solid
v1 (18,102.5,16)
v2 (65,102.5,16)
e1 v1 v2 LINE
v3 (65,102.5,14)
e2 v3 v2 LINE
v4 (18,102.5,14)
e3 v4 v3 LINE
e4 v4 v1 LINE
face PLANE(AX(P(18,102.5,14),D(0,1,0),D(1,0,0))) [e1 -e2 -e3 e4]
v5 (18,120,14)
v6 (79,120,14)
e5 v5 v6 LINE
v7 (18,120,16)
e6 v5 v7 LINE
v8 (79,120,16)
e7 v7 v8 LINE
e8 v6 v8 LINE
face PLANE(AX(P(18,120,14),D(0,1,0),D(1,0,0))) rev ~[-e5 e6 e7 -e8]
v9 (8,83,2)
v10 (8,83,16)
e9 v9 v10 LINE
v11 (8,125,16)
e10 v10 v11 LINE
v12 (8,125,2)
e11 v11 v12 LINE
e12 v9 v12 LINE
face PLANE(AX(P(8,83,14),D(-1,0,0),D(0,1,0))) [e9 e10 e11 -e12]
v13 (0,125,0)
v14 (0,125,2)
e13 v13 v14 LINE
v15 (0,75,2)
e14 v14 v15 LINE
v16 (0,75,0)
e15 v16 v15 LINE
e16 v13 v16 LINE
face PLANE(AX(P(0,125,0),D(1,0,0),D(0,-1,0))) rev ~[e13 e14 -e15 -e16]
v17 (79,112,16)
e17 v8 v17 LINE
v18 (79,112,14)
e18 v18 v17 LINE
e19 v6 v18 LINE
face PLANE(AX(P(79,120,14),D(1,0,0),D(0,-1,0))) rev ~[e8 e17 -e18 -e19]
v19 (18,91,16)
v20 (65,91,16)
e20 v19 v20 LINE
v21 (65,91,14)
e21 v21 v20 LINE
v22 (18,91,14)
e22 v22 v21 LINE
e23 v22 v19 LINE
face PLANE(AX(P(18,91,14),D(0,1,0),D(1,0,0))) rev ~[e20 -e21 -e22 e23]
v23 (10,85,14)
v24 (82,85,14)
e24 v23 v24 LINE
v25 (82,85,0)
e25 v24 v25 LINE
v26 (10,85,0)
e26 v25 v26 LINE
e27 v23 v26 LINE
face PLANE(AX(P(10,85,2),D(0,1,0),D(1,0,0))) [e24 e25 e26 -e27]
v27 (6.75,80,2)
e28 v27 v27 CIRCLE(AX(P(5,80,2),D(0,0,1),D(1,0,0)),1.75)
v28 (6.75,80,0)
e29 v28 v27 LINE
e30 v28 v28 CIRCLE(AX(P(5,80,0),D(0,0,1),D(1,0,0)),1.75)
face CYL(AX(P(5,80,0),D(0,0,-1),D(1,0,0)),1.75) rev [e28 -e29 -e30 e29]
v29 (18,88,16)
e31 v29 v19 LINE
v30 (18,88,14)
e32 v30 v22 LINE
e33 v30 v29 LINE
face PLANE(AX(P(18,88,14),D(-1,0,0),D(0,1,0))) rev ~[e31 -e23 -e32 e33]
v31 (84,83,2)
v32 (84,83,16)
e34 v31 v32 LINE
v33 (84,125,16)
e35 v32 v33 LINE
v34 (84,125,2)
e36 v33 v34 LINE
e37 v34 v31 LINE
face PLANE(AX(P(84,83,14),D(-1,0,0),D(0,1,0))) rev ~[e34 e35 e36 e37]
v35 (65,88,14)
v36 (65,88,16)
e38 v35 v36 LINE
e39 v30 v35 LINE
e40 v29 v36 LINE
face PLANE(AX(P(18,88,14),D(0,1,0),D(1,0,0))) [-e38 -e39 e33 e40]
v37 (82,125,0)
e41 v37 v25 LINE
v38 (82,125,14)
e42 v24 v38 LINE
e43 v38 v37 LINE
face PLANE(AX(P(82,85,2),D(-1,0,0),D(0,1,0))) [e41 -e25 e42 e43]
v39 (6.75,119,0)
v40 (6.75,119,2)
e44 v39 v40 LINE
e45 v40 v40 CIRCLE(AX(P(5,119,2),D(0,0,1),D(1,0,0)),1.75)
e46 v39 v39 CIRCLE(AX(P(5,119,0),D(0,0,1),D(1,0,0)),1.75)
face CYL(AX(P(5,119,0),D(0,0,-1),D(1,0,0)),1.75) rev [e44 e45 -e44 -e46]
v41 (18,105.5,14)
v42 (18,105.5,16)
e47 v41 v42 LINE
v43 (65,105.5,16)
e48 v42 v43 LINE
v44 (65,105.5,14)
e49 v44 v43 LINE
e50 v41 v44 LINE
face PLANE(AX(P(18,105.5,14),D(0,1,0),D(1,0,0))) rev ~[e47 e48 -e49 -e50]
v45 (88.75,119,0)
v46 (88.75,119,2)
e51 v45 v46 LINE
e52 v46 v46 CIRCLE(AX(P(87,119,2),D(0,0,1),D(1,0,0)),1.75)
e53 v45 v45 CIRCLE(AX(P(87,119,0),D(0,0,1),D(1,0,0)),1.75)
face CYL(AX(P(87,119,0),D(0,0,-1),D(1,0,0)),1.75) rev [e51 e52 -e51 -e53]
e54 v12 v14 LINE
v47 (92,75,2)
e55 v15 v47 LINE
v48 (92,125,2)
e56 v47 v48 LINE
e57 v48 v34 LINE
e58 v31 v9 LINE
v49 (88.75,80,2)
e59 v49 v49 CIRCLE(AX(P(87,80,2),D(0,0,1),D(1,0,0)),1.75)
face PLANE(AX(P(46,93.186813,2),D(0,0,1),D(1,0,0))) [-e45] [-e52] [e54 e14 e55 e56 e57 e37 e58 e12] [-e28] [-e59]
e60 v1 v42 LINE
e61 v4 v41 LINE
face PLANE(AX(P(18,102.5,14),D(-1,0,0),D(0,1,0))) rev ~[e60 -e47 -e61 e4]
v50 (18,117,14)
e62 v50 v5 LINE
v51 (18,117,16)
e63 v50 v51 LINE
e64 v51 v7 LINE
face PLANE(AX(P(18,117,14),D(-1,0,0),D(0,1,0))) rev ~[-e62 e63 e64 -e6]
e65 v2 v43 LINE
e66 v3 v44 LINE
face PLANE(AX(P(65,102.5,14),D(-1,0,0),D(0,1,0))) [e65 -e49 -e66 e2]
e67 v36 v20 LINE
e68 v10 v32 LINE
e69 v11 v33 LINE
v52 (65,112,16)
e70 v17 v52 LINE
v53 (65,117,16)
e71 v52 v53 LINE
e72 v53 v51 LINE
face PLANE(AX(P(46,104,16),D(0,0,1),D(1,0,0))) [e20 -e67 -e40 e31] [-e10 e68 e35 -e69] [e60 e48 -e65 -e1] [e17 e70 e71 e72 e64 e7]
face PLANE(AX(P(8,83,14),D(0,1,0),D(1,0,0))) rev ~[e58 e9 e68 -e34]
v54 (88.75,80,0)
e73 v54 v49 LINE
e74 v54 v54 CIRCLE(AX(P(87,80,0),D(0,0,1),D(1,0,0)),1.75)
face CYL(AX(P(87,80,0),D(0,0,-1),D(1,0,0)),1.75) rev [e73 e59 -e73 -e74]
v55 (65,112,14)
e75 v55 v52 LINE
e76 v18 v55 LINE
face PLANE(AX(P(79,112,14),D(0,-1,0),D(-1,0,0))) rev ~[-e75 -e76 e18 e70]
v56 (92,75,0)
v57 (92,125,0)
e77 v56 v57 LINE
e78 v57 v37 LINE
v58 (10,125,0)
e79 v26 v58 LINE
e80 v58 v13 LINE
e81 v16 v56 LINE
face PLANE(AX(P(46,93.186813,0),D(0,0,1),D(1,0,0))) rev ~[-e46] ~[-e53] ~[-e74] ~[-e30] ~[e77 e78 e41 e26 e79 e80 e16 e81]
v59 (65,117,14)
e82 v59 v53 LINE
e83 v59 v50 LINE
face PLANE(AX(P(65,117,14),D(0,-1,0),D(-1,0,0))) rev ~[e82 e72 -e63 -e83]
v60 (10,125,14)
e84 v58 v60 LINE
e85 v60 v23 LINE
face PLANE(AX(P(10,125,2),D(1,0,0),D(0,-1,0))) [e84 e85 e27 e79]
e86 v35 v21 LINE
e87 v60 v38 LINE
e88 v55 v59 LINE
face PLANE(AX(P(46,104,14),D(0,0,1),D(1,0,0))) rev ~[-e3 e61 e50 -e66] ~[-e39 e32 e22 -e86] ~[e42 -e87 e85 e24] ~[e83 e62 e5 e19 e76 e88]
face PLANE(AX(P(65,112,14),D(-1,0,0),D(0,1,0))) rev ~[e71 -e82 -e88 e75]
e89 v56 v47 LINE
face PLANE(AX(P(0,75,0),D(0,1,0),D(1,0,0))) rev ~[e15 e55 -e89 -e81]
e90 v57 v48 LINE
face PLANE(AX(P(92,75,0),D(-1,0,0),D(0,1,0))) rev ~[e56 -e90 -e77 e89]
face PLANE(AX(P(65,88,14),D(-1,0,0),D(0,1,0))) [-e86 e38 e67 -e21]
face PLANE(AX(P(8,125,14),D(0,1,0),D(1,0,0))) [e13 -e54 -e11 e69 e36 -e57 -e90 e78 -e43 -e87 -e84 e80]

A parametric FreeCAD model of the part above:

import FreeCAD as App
import Part
import Sketcher

V = App.Vector
Q = App.Units.Quantity

doc = App.newDocument("Part")
params = doc.addObject("Spreadsheet::Sheet", "Params")
for row, (alias, value) in enumerate([
    ("sketch1_diameter", "3.5 mm"),
    ("sketch1_width", "10 mm"),
    ("sketch1_width2", "92 mm"),
    ("sketch1_height", "50 mm"),
    ("sketch1_height2", "40 mm"),
    ("pad1_length", "2 mm"),
    ("sketch2_width", "2 mm"),
    ("sketch2_width2", "76 mm"),
    ("sketch2_height", "40 mm"),
    ("sketch2_height2", "42 mm"),
    ("pad2_length", "12 mm"),
    ("sketch3_width", "76 mm"),
    ("sketch3_width2", "47 mm"),
    ("sketch3_width3", "61 mm"),
    ("sketch3_height", "42 mm"),
    ("sketch3_height2", "3 mm"),
    ("pad3_length", "2 mm"),
], start=1):
    params.set(f"A{row}", alias)
    params.set(f"B{row}", "=" + value)
    params.setAlias(f"B{row}", alias)

body = doc.addObject("PartDesign::Body", "Body")

# Sketch on XY plane
sketch1 = body.newObject("Sketcher::SketchObject", "Sketch")
sketch1.AttachmentSupport = (doc.getObject("XY_Plane"), [""])
sketch1.MapMode = "FlatFace"
sketch1.addGeometry(Part.LineSegment(V(10, 0, 0), V(0, 0, 0)), False)
sketch1.addGeometry(Part.LineSegment(V(0, 0, 0), V(0, -50, 0)), False)
sketch1.addGeometry(Part.LineSegment(V(0, -50, 0), V(92, -50, 0)), False)
sketch1.addGeometry(Part.LineSegment(V(92, -50, 0), V(92, 0, 0)), False)
sketch1.addGeometry(Part.LineSegment(V(92, 0, 0), V(82, 0, 0)), False)
sketch1.addGeometry(Part.LineSegment(V(82, 0, 0), V(82, -40, 0)), False)
sketch1.addGeometry(Part.LineSegment(V(82, -40, 0), V(10, -40, 0)), False)
sketch1.addGeometry(Part.LineSegment(V(10, -40, 0), V(10, 0, 0)), False)
sketch1.addGeometry(Part.Circle(V(5, -45, 0), V(0, 0, 1), 1.8), False)
sketch1.addGeometry(Part.Circle(V(87, -45, 0), V(0, 0, 1), 1.8), False)
sketch1.addGeometry(Part.Circle(V(5, -6, 0), V(0, 0, 1), 1.8), False)
sketch1.addGeometry(Part.Circle(V(87, -6, 0), V(0, 0, 1), 1.8), False)
sketch1.addConstraint(Sketcher.Constraint("Coincident", 0, 2, 1, 1))
sketch1.addConstraint(Sketcher.Constraint("Coincident", 1, 2, 2, 1))
sketch1.addConstraint(Sketcher.Constraint("Coincident", 2, 2, 3, 1))
sketch1.addConstraint(Sketcher.Constraint("Coincident", 3, 2, 4, 1))
sketch1.addConstraint(Sketcher.Constraint("Coincident", 4, 2, 5, 1))
sketch1.addConstraint(Sketcher.Constraint("Coincident", 5, 2, 6, 1))
sketch1.addConstraint(Sketcher.Constraint("Coincident", 6, 2, 7, 1))
sketch1.addConstraint(Sketcher.Constraint("Coincident", 7, 2, 0, 1))
sketch1.addConstraint(Sketcher.Constraint("Horizontal", 0))
sketch1.addConstraint(Sketcher.Constraint("Vertical", 1))
sketch1.addConstraint(Sketcher.Constraint("Horizontal", 2))
sketch1.addConstraint(Sketcher.Constraint("Vertical", 3))
sketch1.addConstraint(Sketcher.Constraint("Horizontal", 4))
sketch1.addConstraint(Sketcher.Constraint("Vertical", 5))
sketch1.addConstraint(Sketcher.Constraint("Horizontal", 6))
sketch1.addConstraint(Sketcher.Constraint("Vertical", 7))
sketch1.addConstraint(Sketcher.Constraint("Coincident", 0, 2, -1, 1))
sketch1.addConstraint(Sketcher.Constraint("Equal", 8, 9))
sketch1.addConstraint(Sketcher.Constraint("Equal", 9, 10))
sketch1.addConstraint(Sketcher.Constraint("Equal", 10, 11))
sketch1.addConstraint(Sketcher.Constraint("PointOnObject", 3, 2, -1))
sketch1.addConstraint(Sketcher.Constraint("Horizontal", 8, 3, 9, 3))
sketch1.addConstraint(Sketcher.Constraint("Horizontal", 10, 3, 11, 3))
sketch1.addConstraint(Sketcher.Constraint("Vertical", 8, 3, 10, 3))
sketch1.addConstraint(Sketcher.Constraint("Vertical", 9, 3, 11, 3))
sketch1.addConstraint(Sketcher.Constraint("Equal", 0, 4))
sketch1.addConstraint(Sketcher.Constraint("Diameter", 8, Q("3.5 mm")))
sketch1.addConstraint(Sketcher.Constraint("DistanceX", 0, 2, 0, 1, Q("10 mm")))
sketch1.addConstraint(Sketcher.Constraint("DistanceX", 2, 1, 2, 2, Q("92 mm")))
sketch1.addConstraint(Sketcher.Constraint("DistanceY", 1, 2, 1, 1, Q("50 mm")))
sketch1.addConstraint(Sketcher.Constraint("DistanceY", 5, 2, 5, 1, Q("40 mm")))
sketch1.addConstraint(Sketcher.Constraint("DistanceX", -1, 1, 8, 3, Q("5 mm")))
sketch1.addConstraint(Sketcher.Constraint("DistanceY", 8, 3, -1, 1, Q("45 mm")))
sketch1.addConstraint(Sketcher.Constraint("DistanceX", -1, 1, 9, 3, Q("87 mm")))
sketch1.addConstraint(Sketcher.Constraint("DistanceY", 10, 3, -1, 1, Q("6 mm")))
sketch1.setExpression("Constraints[26]", "Params.sketch1_diameter")
sketch1.setExpression("Constraints[27]", "Params.sketch1_width")
sketch1.setExpression("Constraints[28]", "Params.sketch1_width2")
sketch1.setExpression("Constraints[29]", "Params.sketch1_height")
sketch1.setExpression("Constraints[30]", "Params.sketch1_height2")
pad1 = body.newObject("PartDesign::Pad", "Pad")
pad1.Profile = sketch1
pad1.setExpression("Length", "Params.pad1_length")

# Sketch on XY plane
sketch2 = body.newObject("Sketcher::SketchObject", "Sketch001")
sketch2.AttachmentSupport = (doc.getObject("XY_Plane"), [""])
sketch2.MapMode = "FlatFace"
sketch2.AttachmentOffset = App.Placement(V(0, 0, 2), App.Rotation())
sketch2.addGeometry(Part.LineSegment(V(10, -40, 0), V(10, 0, 0)), False)
sketch2.addGeometry(Part.LineSegment(V(10, 0, 0), V(8, 0, 0)), False)
sketch2.addGeometry(Part.LineSegment(V(8, 0, 0), V(8, -42, 0)), False)
sketch2.addGeometry(Part.LineSegment(V(8, -42, 0), V(84, -42, 0)), False)
sketch2.addGeometry(Part.LineSegment(V(84, -42, 0), V(84, 0, 0)), False)
sketch2.addGeometry(Part.LineSegment(V(84, 0, 0), V(82, 0, 0)), False)
sketch2.addGeometry(Part.LineSegment(V(82, 0, 0), V(82, -40, 0)), False)
sketch2.addGeometry(Part.LineSegment(V(82, -40, 0), V(10, -40, 0)), False)
sketch2.addConstraint(Sketcher.Constraint("Coincident", 0, 2, 1, 1))
sketch2.addConstraint(Sketcher.Constraint("Coincident", 1, 2, 2, 1))
sketch2.addConstraint(Sketcher.Constraint("Coincident", 2, 2, 3, 1))
sketch2.addConstraint(Sketcher.Constraint("Coincident", 3, 2, 4, 1))
sketch2.addConstraint(Sketcher.Constraint("Coincident", 4, 2, 5, 1))
sketch2.addConstraint(Sketcher.Constraint("Coincident", 5, 2, 6, 1))
sketch2.addConstraint(Sketcher.Constraint("Coincident", 6, 2, 7, 1))
sketch2.addConstraint(Sketcher.Constraint("Coincident", 7, 2, 0, 1))
sketch2.addConstraint(Sketcher.Constraint("Vertical", 0))
sketch2.addConstraint(Sketcher.Constraint("Horizontal", 1))
sketch2.addConstraint(Sketcher.Constraint("Vertical", 2))
sketch2.addConstraint(Sketcher.Constraint("Horizontal", 3))
sketch2.addConstraint(Sketcher.Constraint("Vertical", 4))
sketch2.addConstraint(Sketcher.Constraint("Horizontal", 5))
sketch2.addConstraint(Sketcher.Constraint("Vertical", 6))
sketch2.addConstraint(Sketcher.Constraint("Horizontal", 7))
sketch2.addConstraint(Sketcher.Constraint("PointOnObject", 0, 2, -1))
sketch2.addConstraint(Sketcher.Constraint("PointOnObject", 4, 2, -1))
sketch2.addConstraint(Sketcher.Constraint("Equal", 1, 5))
sketch2.addConstraint(Sketcher.Constraint("DistanceX", 1, 2, 1, 1, Q("2 mm")))
sketch2.addConstraint(Sketcher.Constraint("DistanceX", 3, 1, 3, 2, Q("76 mm")))
sketch2.addConstraint(Sketcher.Constraint("DistanceY", 0, 1, 0, 2, Q("40 mm")))
sketch2.addConstraint(Sketcher.Constraint("DistanceY", 2, 2, 2, 1, Q("42 mm")))
sketch2.addConstraint(Sketcher.Constraint("DistanceX", -1, 1, 0, 2, Q("10 mm")))
sketch2.setExpression("Constraints[19]", "Params.sketch2_width")
sketch2.setExpression("Constraints[20]", "Params.sketch2_width2")
sketch2.setExpression("Constraints[21]", "Params.sketch2_height")
sketch2.setExpression("Constraints[22]", "Params.sketch2_height2")
pad2 = body.newObject("PartDesign::Pad", "Pad001")
pad2.Profile = sketch2
pad2.setExpression("Length", "Params.pad2_length")

# Sketch on XY plane
sketch3 = body.newObject("Sketcher::SketchObject", "Sketch002")
sketch3.AttachmentSupport = (doc.getObject("XY_Plane"), [""])
sketch3.MapMode = "FlatFace"
sketch3.AttachmentOffset = App.Placement(V(0, 0, 14), App.Rotation())
sketch3.addGeometry(Part.LineSegment(V(8, 0, 0), V(8, -42, 0)), False)
sketch3.addGeometry(Part.LineSegment(V(8, -42, 0), V(84, -42, 0)), False)
sketch3.addGeometry(Part.LineSegment(V(84, -42, 0), V(84, 0, 0)), False)
sketch3.addGeometry(Part.LineSegment(V(84, 0, 0), V(8, 0, 0)), False)
sketch3.addGeometry(Part.LineSegment(V(65, -37, 0), V(18, -37, 0)), False)
sketch3.addGeometry(Part.LineSegment(V(18, -37, 0), V(18, -34, 0)), False)
sketch3.addGeometry(Part.LineSegment(V(18, -34, 0), V(65, -34, 0)), False)
sketch3.addGeometry(Part.LineSegment(V(65, -34, 0), V(65, -37, 0)), False)
sketch3.addGeometry(Part.LineSegment(V(65, -22.5, 0), V(18, -22.5, 0)), False)
sketch3.addGeometry(Part.LineSegment(V(18, -22.5, 0), V(18, -19.5, 0)), False)
sketch3.addGeometry(Part.LineSegment(V(18, -19.5, 0), V(65, -19.5, 0)), False)
sketch3.addGeometry(Part.LineSegment(V(65, -19.5, 0), V(65, -22.5, 0)), False)
sketch3.addGeometry(Part.LineSegment(V(18, -8, 0), V(18, -5, 0)), False)
sketch3.addGeometry(Part.LineSegment(V(18, -5, 0), V(79, -5, 0)), False)
sketch3.addGeometry(Part.LineSegment(V(79, -5, 0), V(79, -13, 0)), False)
sketch3.addGeometry(Part.LineSegment(V(79, -13, 0), V(65, -13, 0)), False)
sketch3.addGeometry(Part.LineSegment(V(65, -13, 0), V(65, -8, 0)), False)
sketch3.addGeometry(Part.LineSegment(V(65, -8, 0), V(18, -8, 0)), False)
sketch3.addConstraint(Sketcher.Constraint("Coincident", 0, 2, 1, 1))
sketch3.addConstraint(Sketcher.Constraint("Coincident", 1, 2, 2, 1))
sketch3.addConstraint(Sketcher.Constraint("Coincident", 2, 2, 3, 1))
sketch3.addConstraint(Sketcher.Constraint("Coincident", 3, 2, 0, 1))
sketch3.addConstraint(Sketcher.Constraint("Coincident", 4, 2, 5, 1))
sketch3.addConstraint(Sketcher.Constraint("Coincident", 5, 2, 6, 1))
sketch3.addConstraint(Sketcher.Constraint("Coincident", 6, 2, 7, 1))
sketch3.addConstraint(Sketcher.Constraint("Coincident", 7, 2, 4, 1))
sketch3.addConstraint(Sketcher.Constraint("Coincident", 8, 2, 9, 1))
sketch3.addConstraint(Sketcher.Constraint("Coincident", 9, 2, 10, 1))
sketch3.addConstraint(Sketcher.Constraint("Coincident", 10, 2, 11, 1))
sketch3.addConstraint(Sketcher.Constraint("Coincident", 11, 2, 8, 1))
sketch3.addConstraint(Sketcher.Constraint("Coincident", 12, 2, 13, 1))
sketch3.addConstraint(Sketcher.Constraint("Coincident", 13, 2, 14, 1))
sketch3.addConstraint(Sketcher.Constraint("Coincident", 14, 2, 15, 1))
sketch3.addConstraint(Sketcher.Constraint("Coincident", 15, 2, 16, 1))
sketch3.addConstraint(Sketcher.Constraint("Coincident", 16, 2, 17, 1))
sketch3.addConstraint(Sketcher.Constraint("Coincident", 17, 2, 12, 1))
sketch3.addConstraint(Sketcher.Constraint("Vertical", 0))
sketch3.addConstraint(Sketcher.Constraint("Horizontal", 1))
sketch3.addConstraint(Sketcher.Constraint("Vertical", 2))
sketch3.addConstraint(Sketcher.Constraint("Horizontal", 3))
sketch3.addConstraint(Sketcher.Constraint("Horizontal", 4))
sketch3.addConstraint(Sketcher.Constraint("Vertical", 5))
sketch3.addConstraint(Sketcher.Constraint("Horizontal", 6))
sketch3.addConstraint(Sketcher.Constraint("Vertical", 7))
sketch3.addConstraint(Sketcher.Constraint("Horizontal", 8))
sketch3.addConstraint(Sketcher.Constraint("Vertical", 9))
sketch3.addConstraint(Sketcher.Constraint("Horizontal", 10))
sketch3.addConstraint(Sketcher.Constraint("Vertical", 11))
sketch3.addConstraint(Sketcher.Constraint("Vertical", 12))
sketch3.addConstraint(Sketcher.Constraint("Horizontal", 13))
sketch3.addConstraint(Sketcher.Constraint("Vertical", 14))
sketch3.addConstraint(Sketcher.Constraint("Horizontal", 15))
sketch3.addConstraint(Sketcher.Constraint("Vertical", 16))
sketch3.addConstraint(Sketcher.Constraint("Horizontal", 17))
sketch3.addConstraint(Sketcher.Constraint("PointOnObject", 2, 2, -1))
sketch3.addConstraint(Sketcher.Constraint("Vertical", 5, 2, 8, 2))
sketch3.addConstraint(Sketcher.Constraint("Vertical", 7, 2, 10, 2))
sketch3.addConstraint(Sketcher.Constraint("Vertical", 9, 2, 12, 2))
sketch3.addConstraint(Sketcher.Constraint("Vertical", 11, 2, 15, 2))
sketch3.addConstraint(Sketcher.Constraint("Equal", 7, 9))
sketch3.addConstraint(Sketcher.Constraint("Equal", 11, 12))
sketch3.addConstraint(Sketcher.Constraint("DistanceX", 1, 1, 1, 2, Q("76 mm")))
sketch3.addConstraint(Sketcher.Constraint("DistanceX", 4, 2, 4, 1, Q("47 mm")))
sketch3.addConstraint(Sketcher.Constraint("DistanceX", 13, 1, 13, 2, Q("61 mm")))
sketch3.addConstraint(Sketcher.Constraint("DistanceY", 0, 2, 0, 1, Q("42 mm")))
sketch3.addConstraint(Sketcher.Constraint("DistanceY", 5, 1, 5, 2, Q("3 mm")))
sketch3.addConstraint(Sketcher.Constraint("DistanceY", 14, 2, 14, 1, Q("8 mm")))
sketch3.addConstraint(Sketcher.Constraint("DistanceX", -1, 1, 0, 2, Q("8 mm")))
sketch3.addConstraint(Sketcher.Constraint("DistanceX", -1, 1, 4, 2, Q("18 mm")))
sketch3.addConstraint(Sketcher.Constraint("DistanceY", 4, 2, -1, 1, Q("37 mm")))
sketch3.addConstraint(Sketcher.Constraint("DistanceY", 12, 2, -1, 1, Q("5 mm")))
sketch3.addConstraint(Sketcher.Constraint("DistanceY", 8, 2, -1, 1, Q("22.5 mm")))
sketch3.setExpression("Constraints[43]", "Params.sketch3_width")
sketch3.setExpression("Constraints[44]", "Params.sketch3_width2")
sketch3.setExpression("Constraints[45]", "Params.sketch3_width3")
sketch3.setExpression("Constraints[46]", "Params.sketch3_height")
sketch3.setExpression("Constraints[47]", "Params.sketch3_height2")
pad3 = body.newObject("PartDesign::Pad", "Pad002")
pad3.Profile = sketch3
pad3.setExpression("Length", "Params.pad3_length")
body2 = doc.addObject("PartDesign::Body", "Body001")
doc.recompute()

body.Placement = App.Placement(V(0, 125, 0), App.Rotation(V(0, 0, 1), 0))
boolean = body2.newObject("PartDesign::Boolean", "Boolean")
boolean.Type = "Fuse"
boolean.addObjects([body])

doc.recompute()
